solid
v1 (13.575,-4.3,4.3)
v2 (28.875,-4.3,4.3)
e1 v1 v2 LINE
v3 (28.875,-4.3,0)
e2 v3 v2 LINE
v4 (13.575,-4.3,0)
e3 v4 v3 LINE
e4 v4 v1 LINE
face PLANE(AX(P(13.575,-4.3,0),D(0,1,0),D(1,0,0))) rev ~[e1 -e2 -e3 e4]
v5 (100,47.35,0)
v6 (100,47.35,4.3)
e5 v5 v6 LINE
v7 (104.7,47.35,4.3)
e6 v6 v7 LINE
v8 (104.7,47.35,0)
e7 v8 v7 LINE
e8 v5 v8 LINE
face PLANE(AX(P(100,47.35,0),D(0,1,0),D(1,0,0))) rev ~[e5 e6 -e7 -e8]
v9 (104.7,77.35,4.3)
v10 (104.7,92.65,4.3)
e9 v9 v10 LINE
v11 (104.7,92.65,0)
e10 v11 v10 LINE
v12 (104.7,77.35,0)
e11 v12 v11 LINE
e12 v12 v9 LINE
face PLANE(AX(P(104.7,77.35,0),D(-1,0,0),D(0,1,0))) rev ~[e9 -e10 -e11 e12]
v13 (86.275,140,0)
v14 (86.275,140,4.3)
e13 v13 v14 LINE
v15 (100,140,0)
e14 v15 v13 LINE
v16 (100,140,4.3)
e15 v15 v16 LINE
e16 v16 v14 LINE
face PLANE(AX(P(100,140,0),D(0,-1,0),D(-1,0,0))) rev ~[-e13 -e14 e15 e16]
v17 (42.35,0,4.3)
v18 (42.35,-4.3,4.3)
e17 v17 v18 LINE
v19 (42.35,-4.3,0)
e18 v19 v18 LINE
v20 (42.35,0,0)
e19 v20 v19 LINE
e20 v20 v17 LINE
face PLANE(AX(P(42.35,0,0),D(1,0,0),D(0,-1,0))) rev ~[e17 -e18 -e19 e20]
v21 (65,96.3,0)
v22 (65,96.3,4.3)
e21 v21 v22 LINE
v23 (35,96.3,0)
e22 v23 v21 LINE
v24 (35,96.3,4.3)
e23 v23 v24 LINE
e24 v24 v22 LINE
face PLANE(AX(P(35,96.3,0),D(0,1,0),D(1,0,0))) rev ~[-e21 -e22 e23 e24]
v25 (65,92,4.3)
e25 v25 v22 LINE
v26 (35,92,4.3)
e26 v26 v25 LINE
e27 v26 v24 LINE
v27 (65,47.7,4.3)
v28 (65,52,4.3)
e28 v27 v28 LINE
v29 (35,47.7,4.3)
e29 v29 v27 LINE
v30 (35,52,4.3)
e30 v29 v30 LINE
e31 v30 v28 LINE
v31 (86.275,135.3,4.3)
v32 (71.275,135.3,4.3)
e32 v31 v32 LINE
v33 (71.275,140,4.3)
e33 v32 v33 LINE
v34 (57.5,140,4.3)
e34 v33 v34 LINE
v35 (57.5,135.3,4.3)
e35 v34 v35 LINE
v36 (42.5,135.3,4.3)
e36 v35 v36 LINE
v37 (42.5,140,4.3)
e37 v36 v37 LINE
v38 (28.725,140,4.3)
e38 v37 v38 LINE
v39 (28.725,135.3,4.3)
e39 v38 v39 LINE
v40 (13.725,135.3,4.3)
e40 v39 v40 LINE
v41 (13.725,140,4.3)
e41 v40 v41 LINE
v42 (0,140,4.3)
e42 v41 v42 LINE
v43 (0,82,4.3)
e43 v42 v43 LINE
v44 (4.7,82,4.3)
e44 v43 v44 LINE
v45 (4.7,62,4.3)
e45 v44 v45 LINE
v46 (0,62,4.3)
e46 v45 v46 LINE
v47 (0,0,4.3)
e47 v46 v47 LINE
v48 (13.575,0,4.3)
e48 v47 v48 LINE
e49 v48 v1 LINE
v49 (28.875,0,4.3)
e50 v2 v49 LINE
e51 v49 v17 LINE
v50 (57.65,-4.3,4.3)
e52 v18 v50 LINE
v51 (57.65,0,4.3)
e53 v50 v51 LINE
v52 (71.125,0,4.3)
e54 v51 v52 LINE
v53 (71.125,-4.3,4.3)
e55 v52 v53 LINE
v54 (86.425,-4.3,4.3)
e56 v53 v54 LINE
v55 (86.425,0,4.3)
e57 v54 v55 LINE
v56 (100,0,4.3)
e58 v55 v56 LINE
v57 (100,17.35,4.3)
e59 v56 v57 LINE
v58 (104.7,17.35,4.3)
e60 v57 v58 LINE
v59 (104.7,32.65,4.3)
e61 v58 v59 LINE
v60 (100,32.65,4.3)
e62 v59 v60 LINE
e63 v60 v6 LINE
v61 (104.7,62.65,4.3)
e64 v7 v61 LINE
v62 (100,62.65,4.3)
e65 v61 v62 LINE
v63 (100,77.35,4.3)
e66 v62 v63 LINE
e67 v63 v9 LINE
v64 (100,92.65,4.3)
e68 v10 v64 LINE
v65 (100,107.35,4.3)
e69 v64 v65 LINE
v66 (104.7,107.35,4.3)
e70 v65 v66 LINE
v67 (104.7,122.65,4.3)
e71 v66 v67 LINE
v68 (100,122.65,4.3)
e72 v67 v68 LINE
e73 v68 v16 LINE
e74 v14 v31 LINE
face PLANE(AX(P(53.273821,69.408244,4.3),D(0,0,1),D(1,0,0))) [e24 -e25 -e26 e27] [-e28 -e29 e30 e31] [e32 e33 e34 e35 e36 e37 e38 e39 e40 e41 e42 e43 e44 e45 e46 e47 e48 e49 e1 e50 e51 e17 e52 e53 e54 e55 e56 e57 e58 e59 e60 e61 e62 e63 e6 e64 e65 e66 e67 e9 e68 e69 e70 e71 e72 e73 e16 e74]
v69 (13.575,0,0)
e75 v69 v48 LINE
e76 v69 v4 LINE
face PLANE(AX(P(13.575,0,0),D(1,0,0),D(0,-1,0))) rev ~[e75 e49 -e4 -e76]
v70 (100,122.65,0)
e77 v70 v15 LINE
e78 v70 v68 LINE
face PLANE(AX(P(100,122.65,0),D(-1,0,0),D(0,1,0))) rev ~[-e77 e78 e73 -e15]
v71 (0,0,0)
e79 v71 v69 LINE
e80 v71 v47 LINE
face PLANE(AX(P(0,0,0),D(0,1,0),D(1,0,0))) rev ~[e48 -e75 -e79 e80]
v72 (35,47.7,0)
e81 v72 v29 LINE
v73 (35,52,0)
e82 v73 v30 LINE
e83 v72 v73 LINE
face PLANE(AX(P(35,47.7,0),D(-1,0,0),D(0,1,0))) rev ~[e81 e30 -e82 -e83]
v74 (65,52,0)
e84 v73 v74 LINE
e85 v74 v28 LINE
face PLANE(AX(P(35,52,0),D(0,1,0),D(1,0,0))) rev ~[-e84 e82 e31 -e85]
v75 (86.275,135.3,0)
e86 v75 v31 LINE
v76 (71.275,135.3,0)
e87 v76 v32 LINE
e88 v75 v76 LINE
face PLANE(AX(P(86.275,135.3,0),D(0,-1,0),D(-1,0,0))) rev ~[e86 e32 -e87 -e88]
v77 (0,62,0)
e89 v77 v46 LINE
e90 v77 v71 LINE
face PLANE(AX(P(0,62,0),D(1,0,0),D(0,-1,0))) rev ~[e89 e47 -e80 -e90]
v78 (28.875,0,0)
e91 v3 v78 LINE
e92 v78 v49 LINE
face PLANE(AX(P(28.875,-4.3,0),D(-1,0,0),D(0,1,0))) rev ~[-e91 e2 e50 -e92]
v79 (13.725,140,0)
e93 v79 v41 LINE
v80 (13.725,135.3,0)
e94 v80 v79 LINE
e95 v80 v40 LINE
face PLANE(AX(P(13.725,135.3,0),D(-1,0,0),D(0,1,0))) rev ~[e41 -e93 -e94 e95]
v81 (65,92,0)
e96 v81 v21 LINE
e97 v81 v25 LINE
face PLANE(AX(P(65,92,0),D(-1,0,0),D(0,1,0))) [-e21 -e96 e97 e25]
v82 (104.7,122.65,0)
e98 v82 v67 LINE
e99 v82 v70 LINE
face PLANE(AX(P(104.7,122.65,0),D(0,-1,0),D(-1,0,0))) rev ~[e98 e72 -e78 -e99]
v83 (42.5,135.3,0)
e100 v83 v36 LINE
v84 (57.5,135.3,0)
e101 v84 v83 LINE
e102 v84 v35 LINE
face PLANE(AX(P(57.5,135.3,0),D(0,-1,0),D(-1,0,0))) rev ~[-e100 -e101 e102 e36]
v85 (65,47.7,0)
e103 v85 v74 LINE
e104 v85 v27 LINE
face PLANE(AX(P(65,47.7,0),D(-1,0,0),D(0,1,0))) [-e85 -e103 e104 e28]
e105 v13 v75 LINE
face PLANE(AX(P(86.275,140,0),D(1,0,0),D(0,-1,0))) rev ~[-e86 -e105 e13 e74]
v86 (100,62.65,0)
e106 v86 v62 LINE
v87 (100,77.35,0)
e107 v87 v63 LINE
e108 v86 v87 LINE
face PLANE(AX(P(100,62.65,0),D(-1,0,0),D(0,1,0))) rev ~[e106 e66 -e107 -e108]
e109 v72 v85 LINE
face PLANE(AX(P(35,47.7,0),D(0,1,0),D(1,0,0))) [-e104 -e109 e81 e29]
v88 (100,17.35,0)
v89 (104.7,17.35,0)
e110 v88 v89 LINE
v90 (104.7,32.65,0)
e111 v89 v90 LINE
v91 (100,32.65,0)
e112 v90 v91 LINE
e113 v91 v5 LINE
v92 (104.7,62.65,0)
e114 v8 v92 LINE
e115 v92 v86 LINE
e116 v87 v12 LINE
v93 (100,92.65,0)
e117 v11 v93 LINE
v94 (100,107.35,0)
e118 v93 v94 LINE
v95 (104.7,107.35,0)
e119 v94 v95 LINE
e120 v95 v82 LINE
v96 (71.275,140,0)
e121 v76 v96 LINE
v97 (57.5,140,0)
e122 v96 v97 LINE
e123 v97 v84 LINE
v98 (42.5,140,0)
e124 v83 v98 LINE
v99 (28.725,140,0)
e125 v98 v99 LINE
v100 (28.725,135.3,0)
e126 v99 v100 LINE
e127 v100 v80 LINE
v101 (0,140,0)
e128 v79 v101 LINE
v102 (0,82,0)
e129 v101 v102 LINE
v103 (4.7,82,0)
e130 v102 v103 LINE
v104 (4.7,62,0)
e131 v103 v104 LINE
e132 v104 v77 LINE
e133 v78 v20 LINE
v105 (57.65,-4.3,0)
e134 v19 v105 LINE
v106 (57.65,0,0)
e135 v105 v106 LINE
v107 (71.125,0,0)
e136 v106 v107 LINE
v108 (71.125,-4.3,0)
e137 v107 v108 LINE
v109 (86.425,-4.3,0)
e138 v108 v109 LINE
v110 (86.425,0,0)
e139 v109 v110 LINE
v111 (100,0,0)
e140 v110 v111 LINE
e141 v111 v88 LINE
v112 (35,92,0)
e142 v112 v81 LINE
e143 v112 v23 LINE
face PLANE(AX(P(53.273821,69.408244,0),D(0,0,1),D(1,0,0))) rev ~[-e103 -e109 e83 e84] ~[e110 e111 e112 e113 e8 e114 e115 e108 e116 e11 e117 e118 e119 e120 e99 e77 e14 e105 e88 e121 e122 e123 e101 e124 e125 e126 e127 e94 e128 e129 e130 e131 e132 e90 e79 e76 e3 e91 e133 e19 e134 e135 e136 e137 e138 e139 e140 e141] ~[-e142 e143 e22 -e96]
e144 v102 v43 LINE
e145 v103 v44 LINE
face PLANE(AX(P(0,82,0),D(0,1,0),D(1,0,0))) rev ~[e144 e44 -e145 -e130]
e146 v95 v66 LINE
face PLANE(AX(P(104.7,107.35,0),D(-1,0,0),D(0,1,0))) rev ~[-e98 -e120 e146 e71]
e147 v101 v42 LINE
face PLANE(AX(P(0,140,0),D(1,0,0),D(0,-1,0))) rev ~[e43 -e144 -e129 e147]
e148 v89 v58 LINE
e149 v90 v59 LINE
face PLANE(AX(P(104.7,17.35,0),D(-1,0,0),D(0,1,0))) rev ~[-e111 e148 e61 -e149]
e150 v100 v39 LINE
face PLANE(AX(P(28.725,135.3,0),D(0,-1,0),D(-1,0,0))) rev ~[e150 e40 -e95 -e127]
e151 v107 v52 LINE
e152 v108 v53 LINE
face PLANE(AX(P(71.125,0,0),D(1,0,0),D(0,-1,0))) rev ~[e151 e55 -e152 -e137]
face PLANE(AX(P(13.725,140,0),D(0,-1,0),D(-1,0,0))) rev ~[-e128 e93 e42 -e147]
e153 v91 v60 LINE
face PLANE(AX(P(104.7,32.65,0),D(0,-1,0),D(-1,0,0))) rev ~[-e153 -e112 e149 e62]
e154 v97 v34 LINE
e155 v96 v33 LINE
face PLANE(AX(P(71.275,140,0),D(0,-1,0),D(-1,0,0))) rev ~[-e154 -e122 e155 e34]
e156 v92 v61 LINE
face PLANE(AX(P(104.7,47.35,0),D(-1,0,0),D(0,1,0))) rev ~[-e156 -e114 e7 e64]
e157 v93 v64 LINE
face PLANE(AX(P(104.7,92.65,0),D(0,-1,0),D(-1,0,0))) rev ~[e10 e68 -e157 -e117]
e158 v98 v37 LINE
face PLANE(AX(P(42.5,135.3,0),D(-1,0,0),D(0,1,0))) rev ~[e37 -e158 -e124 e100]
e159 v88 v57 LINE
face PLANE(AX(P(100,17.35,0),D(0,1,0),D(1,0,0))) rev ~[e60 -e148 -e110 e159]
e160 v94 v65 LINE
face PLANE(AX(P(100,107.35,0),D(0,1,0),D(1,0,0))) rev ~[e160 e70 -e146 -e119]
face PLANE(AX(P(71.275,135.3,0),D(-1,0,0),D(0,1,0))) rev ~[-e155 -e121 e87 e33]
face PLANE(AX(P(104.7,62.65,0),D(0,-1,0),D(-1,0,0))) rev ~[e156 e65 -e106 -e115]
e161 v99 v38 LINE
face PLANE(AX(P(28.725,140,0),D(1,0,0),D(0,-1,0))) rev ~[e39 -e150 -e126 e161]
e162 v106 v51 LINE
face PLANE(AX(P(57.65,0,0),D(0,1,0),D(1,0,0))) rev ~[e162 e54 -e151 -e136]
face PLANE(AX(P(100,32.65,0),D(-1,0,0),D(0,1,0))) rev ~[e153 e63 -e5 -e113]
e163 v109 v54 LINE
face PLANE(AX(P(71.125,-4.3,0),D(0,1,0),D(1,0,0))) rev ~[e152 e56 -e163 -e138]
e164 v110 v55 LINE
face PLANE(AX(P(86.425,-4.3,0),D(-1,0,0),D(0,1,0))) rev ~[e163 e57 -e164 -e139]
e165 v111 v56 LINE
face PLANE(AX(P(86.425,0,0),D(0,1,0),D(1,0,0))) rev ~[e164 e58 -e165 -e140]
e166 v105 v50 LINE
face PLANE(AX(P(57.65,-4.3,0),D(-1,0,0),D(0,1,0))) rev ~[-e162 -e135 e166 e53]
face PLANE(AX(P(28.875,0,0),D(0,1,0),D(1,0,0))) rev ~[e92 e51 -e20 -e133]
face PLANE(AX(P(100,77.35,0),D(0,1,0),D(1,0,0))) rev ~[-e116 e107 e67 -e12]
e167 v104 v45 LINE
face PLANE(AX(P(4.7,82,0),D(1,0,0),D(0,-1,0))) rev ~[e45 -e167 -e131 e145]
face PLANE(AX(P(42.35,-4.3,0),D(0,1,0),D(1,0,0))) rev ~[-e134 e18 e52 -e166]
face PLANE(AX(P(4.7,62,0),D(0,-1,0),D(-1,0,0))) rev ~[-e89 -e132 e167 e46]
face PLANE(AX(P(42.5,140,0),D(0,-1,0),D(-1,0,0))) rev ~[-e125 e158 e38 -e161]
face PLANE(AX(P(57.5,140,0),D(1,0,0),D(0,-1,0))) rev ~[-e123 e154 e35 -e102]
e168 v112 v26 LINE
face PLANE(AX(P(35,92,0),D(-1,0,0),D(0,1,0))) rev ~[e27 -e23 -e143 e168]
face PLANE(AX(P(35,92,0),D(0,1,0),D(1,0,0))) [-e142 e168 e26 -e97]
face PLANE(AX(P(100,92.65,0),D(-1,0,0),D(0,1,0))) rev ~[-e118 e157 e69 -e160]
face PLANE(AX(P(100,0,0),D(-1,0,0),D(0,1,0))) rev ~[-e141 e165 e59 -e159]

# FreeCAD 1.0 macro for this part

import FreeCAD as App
import Part
import Sketcher

doc = App.newDocument("Part")
body = doc.addObject("PartDesign::Body", "Body")

# Sketch on XY plane
sketch1 = body.newObject("Sketcher::SketchObject", "Sketch")
sketch1.AttachmentSupport = (doc.getObject("XY_Plane"), [""])
sketch1.MapMode = "FlatFace"
sketch1.addGeometry([
    Part.LineSegment(App.Vector(100, 0, 0), App.Vector(100, 17.4, 0)),  # 0
    Part.LineSegment(App.Vector(100, 17.4, 0), App.Vector(104.7, 17.4, 0)),  # 1
    Part.LineSegment(App.Vector(104.7, 17.4, 0), App.Vector(104.7, 32.6, 0)),  # 2
    Part.LineSegment(App.Vector(104.7, 32.6, 0), App.Vector(100, 32.6, 0)),  # 3
    Part.LineSegment(App.Vector(100, 32.6, 0), App.Vector(100, 47.4, 0)),  # 4
    Part.LineSegment(App.Vector(100, 47.4, 0), App.Vector(104.7, 47.4, 0)),  # 5
    Part.LineSegment(App.Vector(104.7, 47.4, 0), App.Vector(104.7, 62.6, 0)),  # 6
    Part.LineSegment(App.Vector(104.7, 62.6, 0), App.Vector(100, 62.6, 0)),  # 7
    Part.LineSegment(App.Vector(100, 62.6, 0), App.Vector(100, 77.3, 0)),  # 8
    Part.LineSegment(App.Vector(100, 77.3, 0), App.Vector(104.7, 77.3, 0)),  # 9
    Part.LineSegment(App.Vector(104.7, 77.3, 0), App.Vector(104.7, 92.7, 0)),  # 10
    Part.LineSegment(App.Vector(104.7, 92.7, 0), App.Vector(100, 92.7, 0)),  # 11
    Part.LineSegment(App.Vector(100, 92.7, 0), App.Vector(100, 107.3, 0)),  # 12
    Part.LineSegment(App.Vector(100, 107.3, 0), App.Vector(104.7, 107.3, 0)),  # 13
    Part.LineSegment(App.Vector(104.7, 107.3, 0), App.Vector(104.7, 122.7, 0)),  # 14
    Part.LineSegment(App.Vector(104.7, 122.7, 0), App.Vector(100, 122.7, 0)),  # 15
    Part.LineSegment(App.Vector(100, 122.7, 0), App.Vector(100, 140, 0)),  # 16
    Part.LineSegment(App.Vector(100, 140, 0), App.Vector(86.3, 140, 0)),  # 17
    Part.LineSegment(App.Vector(86.3, 140, 0), App.Vector(86.3, 135.3, 0)),  # 18
    Part.LineSegment(App.Vector(86.3, 135.3, 0), App.Vector(71.3, 135.3, 0)),  # 19
    Part.LineSegment(App.Vector(71.3, 135.3, 0), App.Vector(71.3, 140, 0)),  # 20
    Part.LineSegment(App.Vector(71.3, 140, 0), App.Vector(57.5, 140, 0)),  # 21
    Part.LineSegment(App.Vector(57.5, 140, 0), App.Vector(57.5, 135.3, 0)),  # 22
    Part.LineSegment(App.Vector(57.5, 135.3, 0), App.Vector(42.5, 135.3, 0)),  # 23
    Part.LineSegment(App.Vector(42.5, 135.3, 0), App.Vector(42.5, 140, 0)),  # 24
    Part.LineSegment(App.Vector(42.5, 140, 0), App.Vector(28.7, 140, 0)),  # 25
    Part.LineSegment(App.Vector(28.7, 140, 0), App.Vector(28.7, 135.3, 0)),  # 26
    Part.LineSegment(App.Vector(28.7, 135.3, 0), App.Vector(13.7, 135.3, 0)),  # 27
    Part.LineSegment(App.Vector(13.7, 135.3, 0), App.Vector(13.7, 140, 0)),  # 28
    Part.LineSegment(App.Vector(13.7, 140, 0), App.Vector(0, 140, 0)),  # 29
    Part.LineSegment(App.Vector(0, 140, 0), App.Vector(0, 82, 0)),  # 30
    Part.LineSegment(App.Vector(0, 82, 0), App.Vector(4.7, 82, 0)),  # 31
    Part.LineSegment(App.Vector(4.7, 82, 0), App.Vector(4.7, 62, 0)),  # 32
    Part.LineSegment(App.Vector(4.7, 62, 0), App.Vector(0, 62, 0)),  # 33
    Part.LineSegment(App.Vector(0, 62, 0), App.Vector(0, 0, 0)),  # 34
    Part.LineSegment(App.Vector(0, 0, 0), App.Vector(13.6, 0, 0)),  # 35
    Part.LineSegment(App.Vector(13.6, 0, 0), App.Vector(13.6, -4.3, 0)),  # 36
    Part.LineSegment(App.Vector(13.6, -4.3, 0), App.Vector(28.9, -4.3, 0)),  # 37
    Part.LineSegment(App.Vector(28.9, -4.3, 0), App.Vector(28.9, 0, 0)),  # 38
    Part.LineSegment(App.Vector(28.9, 0, 0), App.Vector(42.4, 0, 0)),  # 39
    Part.LineSegment(App.Vector(42.4, 0, 0), App.Vector(42.4, -4.3, 0)),  # 40
    Part.LineSegment(App.Vector(42.4, -4.3, 0), App.Vector(57.6, -4.3, 0)),  # 41
    Part.LineSegment(App.Vector(57.6, -4.3, 0), App.Vector(57.6, 0, 0)),  # 42
    Part.LineSegment(App.Vector(57.6, 0, 0), App.Vector(71.1, 0, 0)),  # 43
    Part.LineSegment(App.Vector(71.1, 0, 0), App.Vector(71.1, -4.3, 0)),  # 44
    Part.LineSegment(App.Vector(71.1, -4.3, 0), App.Vector(86.4, -4.3, 0)),  # 45
    Part.LineSegment(App.Vector(86.4, -4.3, 0), App.Vector(86.4, 0, 0)),  # 46
    Part.LineSegment(App.Vector(86.4, 0, 0), App.Vector(100, 0, 0)),  # 47
    Part.LineSegment(App.Vector(65, 47.7, 0), App.Vector(35, 47.7, 0)),  # 48
    Part.LineSegment(App.Vector(35, 47.7, 0), App.Vector(35, 52, 0)),  # 49
    Part.LineSegment(App.Vector(35, 52, 0), App.Vector(65, 52, 0)),  # 50
    Part.LineSegment(App.Vector(65, 52, 0), App.Vector(65, 47.7, 0)),  # 51
    Part.LineSegment(App.Vector(65, 92, 0), App.Vector(35, 92, 0)),  # 52
    Part.LineSegment(App.Vector(35, 92, 0), App.Vector(35, 96.3, 0)),  # 53
    Part.LineSegment(App.Vector(35, 96.3, 0), App.Vector(65, 96.3, 0)),  # 54
    Part.LineSegment(App.Vector(65, 96.3, 0), App.Vector(65, 92, 0)),  # 55
], False)
sketch1.addConstraint([
    Sketcher.Constraint("Coincident", 0, 2, 1, 1),
    Sketcher.Constraint("Coincident", 1, 2, 2, 1),
    Sketcher.Constraint("Coincident", 2, 2, 3, 1),
    Sketcher.Constraint("Coincident", 3, 2, 4, 1),
    Sketcher.Constraint("Coincident", 4, 2, 5, 1),
    Sketcher.Constraint("Coincident", 5, 2, 6, 1),
    Sketcher.Constraint("Coincident", 6, 2, 7, 1),
    Sketcher.Constraint("Coincident", 7, 2, 8, 1),
    Sketcher.Constraint("Coincident", 8, 2, 9, 1),
    Sketcher.Constraint("Coincident", 9, 2, 10, 1),
    Sketcher.Constraint("Coincident", 10, 2, 11, 1),
    Sketcher.Constraint("Coincident", 11, 2, 12, 1),
    Sketcher.Constraint("Coincident", 12, 2, 13, 1),
    Sketcher.Constraint("Coincident", 13, 2, 14, 1),
    Sketcher.Constraint("Coincident", 14, 2, 15, 1),
    Sketcher.Constraint("Coincident", 15, 2, 16, 1),
    Sketcher.Constraint("Coincident", 16, 2, 17, 1),
    Sketcher.Constraint("Coincident", 17, 2, 18, 1),
    Sketcher.Constraint("Coincident", 18, 2, 19, 1),
    Sketcher.Constraint("Coincident", 19, 2, 20, 1),
    Sketcher.Constraint("Coincident", 20, 2, 21, 1),
    Sketcher.Constraint("Coincident", 21, 2, 22, 1),
    Sketcher.Constraint("Coincident", 22, 2, 23, 1),
    Sketcher.Constraint("Coincident", 23, 2, 24, 1),
    Sketcher.Constraint("Coincident", 24, 2, 25, 1),
    Sketcher.Constraint("Coincident", 25, 2, 26, 1),
    Sketcher.Constraint("Coincident", 26, 2, 27, 1),
    Sketcher.Constraint("Coincident", 27, 2, 28, 1),
    Sketcher.Constraint("Coincident", 28, 2, 29, 1),
    Sketcher.Constraint("Coincident", 29, 2, 30, 1),
    Sketcher.Constraint("Coincident", 30, 2, 31, 1),
    Sketcher.Constraint("Coincident", 31, 2, 32, 1),
    Sketcher.Constraint("Coincident", 32, 2, 33, 1),
    Sketcher.Constraint("Coincident", 33, 2, 34, 1),
    Sketcher.Constraint("Coincident", 34, 2, 35, 1),
    Sketcher.Constraint("Coincident", 35, 2, 36, 1),
    Sketcher.Constraint("Coincident", 36, 2, 37, 1),
    Sketcher.Constraint("Coincident", 37, 2, 38, 1),
    Sketcher.Constraint("Coincident", 38, 2, 39, 1),
    Sketcher.Constraint("Coincident", 39, 2, 40, 1),
    Sketcher.Constraint("Coincident", 40, 2, 41, 1),
    Sketcher.Constraint("Coincident", 41, 2, 42, 1),
    Sketcher.Constraint("Coincident", 42, 2, 43, 1),
    Sketcher.Constraint("Coincident", 43, 2, 44, 1),
    Sketcher.Constraint("Coincident", 44, 2, 45, 1),
    Sketcher.Constraint("Coincident", 45, 2, 46, 1),
    Sketcher.Constraint("Coincident", 46, 2, 47, 1),
    Sketcher.Constraint("Coincident", 47, 2, 0, 1),
    Sketcher.Constraint("Coincident", 48, 2, 49, 1),
    Sketcher.Constraint("Coincident", 49, 2, 50, 1),
    Sketcher.Constraint("Coincident", 50, 2, 51, 1),
    Sketcher.Constraint("Coincident", 51, 2, 48, 1),
    Sketcher.Constraint("Coincident", 52, 2, 53, 1),
    Sketcher.Constraint("Coincident", 53, 2, 54, 1),
    Sketcher.Constraint("Coincident", 54, 2, 55, 1),
    Sketcher.Constraint("Coincident", 55, 2, 52, 1),
    Sketcher.Constraint("Vertical", 0),
    Sketcher.Constraint("Horizontal", 1),
    Sketcher.Constraint("Vertical", 2),
    Sketcher.Constraint("Horizontal", 3),
    Sketcher.Constraint("Vertical", 4),
    Sketcher.Constraint("Horizontal", 5),
    Sketcher.Constraint("Vertical", 6),
    Sketcher.Constraint("Horizontal", 7),
    Sketcher.Constraint("Vertical", 8),
    Sketcher.Constraint("Horizontal", 9),
    Sketcher.Constraint("Vertical", 10),
    Sketcher.Constraint("Horizontal", 11),
    Sketcher.Constraint("Vertical", 12),
    Sketcher.Constraint("Horizontal", 13),
    Sketcher.Constraint("Vertical", 14),
    Sketcher.Constraint("Horizontal", 15),
    Sketcher.Constraint("Vertical", 16),
    Sketcher.Constraint("Horizontal", 17),
    Sketcher.Constraint("Vertical", 18),
    Sketcher.Constraint("Horizontal", 19),
    Sketcher.Constraint("Vertical", 20),
    Sketcher.Constraint("Horizontal", 21),
    Sketcher.Constraint("Vertical", 22),
    Sketcher.Constraint("Horizontal", 23),
    Sketcher.Constraint("Vertical", 24),
    Sketcher.Constraint("Horizontal", 25),
    Sketcher.Constraint("Vertical", 26),
    Sketcher.Constraint("Horizontal", 27),
    Sketcher.Constraint("Vertical", 28),
    Sketcher.Constraint("Horizontal", 29),
    Sketcher.Constraint("Vertical", 30),
    Sketcher.Constraint("Horizontal", 31),
    Sketcher.Constraint("Vertical", 32),
    Sketcher.Constraint("Horizontal", 33),
    Sketcher.Constraint("Vertical", 34),
    Sketcher.Constraint("Horizontal", 35),
    Sketcher.Constraint("Vertical", 36),
    Sketcher.Constraint("Horizontal", 37),
    Sketcher.Constraint("Vertical", 38),
    Sketcher.Constraint("Horizontal", 39),
    Sketcher.Constraint("Vertical", 40),
    Sketcher.Constraint("Horizontal", 41),
    Sketcher.Constraint("Vertical", 42),
    Sketcher.Constraint("Horizontal", 43),
    Sketcher.Constraint("Vertical", 44),
    Sketcher.Constraint("Horizontal", 45),
    Sketcher.Constraint("Vertical", 46),
    Sketcher.Constraint("Horizontal", 47),
    Sketcher.Constraint("Horizontal", 48),
    Sketcher.Constraint("Vertical", 49),
    Sketcher.Constraint("Horizontal", 50),
    Sketcher.Constraint("Vertical", 51),
    Sketcher.Constraint("Horizontal", 52),
    Sketcher.Constraint("Vertical", 53),
    Sketcher.Constraint("Horizontal", 54),
    Sketcher.Constraint("Vertical", 55),
    Sketcher.Constraint("Coincident", 34, 2, -1, 1),
    Sketcher.Constraint("PointOnObject", 29, 2, -2),
    Sketcher.Constraint("PointOnObject", 38, 2, -1),
    Sketcher.Constraint("PointOnObject", 42, 2, -1),
    Sketcher.Constraint("PointOnObject", 46, 2, -1),
    Sketcher.Constraint("Horizontal", 17, 2, 20, 2),
    Sketcher.Constraint("Horizontal", 19, 2, 22, 2),
    Sketcher.Constraint("Horizontal", 21, 2, 24, 2),
    Sketcher.Constraint("Horizontal", 23, 2, 26, 2),
    Sketcher.Constraint("Horizontal", 25, 2, 28, 2),
    Sketcher.Constraint("Horizontal", 37, 2, 40, 2),
    Sketcher.Constraint("Horizontal", 41, 2, 44, 2),
    Sketcher.Constraint("Vertical", 0, 2, 3, 2),
    Sketcher.Constraint("Vertical", 2, 2, 5, 2),
    Sketcher.Constraint("Vertical", 4, 2, 7, 2),
    Sketcher.Constraint("Vertical", 6, 2, 9, 2),
    Sketcher.Constraint("Vertical", 8, 2, 11, 2),
    Sketcher.Constraint("Vertical", 10, 2, 13, 2),
    Sketcher.Constraint("Vertical", 12, 2, 15, 2),
    Sketcher.Constraint("Vertical", 49, 2, 52, 2),
    Sketcher.Constraint("Vertical", 51, 2, 54, 2),
    Sketcher.Constraint("Equal", 19, 23),
    Sketcher.Constraint("Equal", 21, 25),
    Sketcher.Constraint("Equal", 23, 27),
    Sketcher.Constraint("Equal", 17, 29),
    Sketcher.Constraint("Equal", 15, 31),
    Sketcher.Constraint("Equal", 37, 41),
    Sketcher.Constraint("Equal", 39, 43),
    Sketcher.Constraint("Equal", 41, 45),
    Sketcher.Constraint("Equal", 35, 47),
    Sketcher.Constraint("Equal", 45, 2),
    Sketcher.Constraint("Equal", 2, 6),
    Sketcher.Constraint("Equal", 4, 8),
    Sketcher.Constraint("Equal", 6, 10),
    Sketcher.Constraint("Equal", 8, 12),
    Sketcher.Constraint("Equal", 10, 14),
    Sketcher.Constraint("Equal", 0, 16),
    Sketcher.Constraint("Equal", 33, 18),
    Sketcher.Constraint("Equal", 46, 49),
    Sketcher.Constraint("Equal", 51, 53),
    Sketcher.Constraint("DistanceX", 19, 2, 19, 1, 15.0),
    Sketcher.Constraint("DistanceX", 48, 2, 48, 1, 30.0),
    Sketcher.Constraint("DistanceY", 30, 2, 30, 1, 58.0),
    Sketcher.Constraint("DistanceY", 32, 2, 32, 1, 20.0),
    Sketcher.Constraint("DistanceY", 34, 2, 34, 1, 62.0),
    Sketcher.Constraint("DistanceX", 1, 1, 1, 2, 4.7),
    Sketcher.Constraint("DistanceX", 37, 1, 37, 2, 15.3),
    Sketcher.Constraint("DistanceY", 4, 1, 4, 2, 14.7),
    Sketcher.Constraint("DistanceY", 36, 2, 36, 1, 4.3),
    Sketcher.Constraint("DistanceX", -1, 1, 0, 2, 100.0),
    Sketcher.Constraint("DistanceX", -1, 1, 48, 2, 35.0),
    Sketcher.Constraint("DistanceY", -1, 1, 49, 2, 52.0),
    Sketcher.Constraint("DistanceY", -1, 1, 52, 2, 92.0),
    Sketcher.Constraint("DistanceX", 17, 2, 17, 1, 13.725),
    Sketcher.Constraint("DistanceX", 35, 1, 35, 2, 13.575),
])
pad1 = body.newObject("PartDesign::Pad", "Pad")
pad1.Profile = sketch1
pad1.Length = 4.3

doc.recompute()
